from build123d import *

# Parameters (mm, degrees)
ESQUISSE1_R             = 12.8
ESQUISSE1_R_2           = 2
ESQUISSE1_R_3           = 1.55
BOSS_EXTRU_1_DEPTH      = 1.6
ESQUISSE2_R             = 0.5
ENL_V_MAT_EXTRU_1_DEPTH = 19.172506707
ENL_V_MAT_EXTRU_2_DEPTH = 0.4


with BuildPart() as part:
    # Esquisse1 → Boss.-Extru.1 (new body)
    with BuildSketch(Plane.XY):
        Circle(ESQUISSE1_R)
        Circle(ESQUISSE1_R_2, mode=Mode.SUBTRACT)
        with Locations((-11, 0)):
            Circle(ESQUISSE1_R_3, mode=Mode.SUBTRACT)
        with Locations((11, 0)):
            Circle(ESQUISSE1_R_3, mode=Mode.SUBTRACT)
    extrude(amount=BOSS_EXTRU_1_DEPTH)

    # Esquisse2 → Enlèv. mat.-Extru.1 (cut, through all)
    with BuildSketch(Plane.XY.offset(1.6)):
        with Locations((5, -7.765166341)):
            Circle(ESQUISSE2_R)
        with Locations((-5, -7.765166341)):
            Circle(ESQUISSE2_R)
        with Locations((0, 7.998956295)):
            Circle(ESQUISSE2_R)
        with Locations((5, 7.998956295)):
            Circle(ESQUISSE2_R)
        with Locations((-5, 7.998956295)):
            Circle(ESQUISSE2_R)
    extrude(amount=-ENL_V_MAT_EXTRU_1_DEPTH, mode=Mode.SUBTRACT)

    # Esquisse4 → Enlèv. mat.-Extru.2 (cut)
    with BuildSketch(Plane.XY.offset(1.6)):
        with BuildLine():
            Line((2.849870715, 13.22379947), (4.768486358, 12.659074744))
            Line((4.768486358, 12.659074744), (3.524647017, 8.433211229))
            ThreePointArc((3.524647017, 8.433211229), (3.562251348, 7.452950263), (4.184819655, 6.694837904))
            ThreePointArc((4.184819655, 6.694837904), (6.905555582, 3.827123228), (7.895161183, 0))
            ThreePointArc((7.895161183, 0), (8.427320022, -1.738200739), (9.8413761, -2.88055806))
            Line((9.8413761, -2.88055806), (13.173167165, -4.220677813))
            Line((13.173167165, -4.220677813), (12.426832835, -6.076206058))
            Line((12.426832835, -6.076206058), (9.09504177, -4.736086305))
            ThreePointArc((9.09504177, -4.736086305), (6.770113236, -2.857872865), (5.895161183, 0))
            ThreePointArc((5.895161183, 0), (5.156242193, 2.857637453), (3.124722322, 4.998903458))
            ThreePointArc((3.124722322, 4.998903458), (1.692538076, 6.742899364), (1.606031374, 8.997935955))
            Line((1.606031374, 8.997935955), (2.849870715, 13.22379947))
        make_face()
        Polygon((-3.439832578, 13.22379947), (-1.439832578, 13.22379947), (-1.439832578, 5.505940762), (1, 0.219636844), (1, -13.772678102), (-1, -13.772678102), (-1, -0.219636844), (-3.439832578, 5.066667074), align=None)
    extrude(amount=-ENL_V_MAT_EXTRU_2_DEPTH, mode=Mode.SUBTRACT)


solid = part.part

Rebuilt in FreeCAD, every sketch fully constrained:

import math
import FreeCAD as App
import Part
import Sketcher

V = App.Vector


def add_polygon(sketch, points):
    """Adds a closed chain of lines whose ends are joined by coincident constraints."""
    first, n = sketch.GeometryCount, len(points)
    for a, b in zip(points, points[1:] + points[:1]):
        sketch.addGeometry(Part.LineSegment(App.Vector(*a, 0), App.Vector(*b, 0)), False)
    for i in range(n):
        sketch.addConstraint(Sketcher.Constraint("Coincident", first + i, 2, first + (i + 1) % n, 1))

doc = App.newDocument("Part")
params = doc.addObject("Spreadsheet::Sheet", "Params")
for row, (alias, value) in enumerate([
    ("sketch1_diameter", "4 mm"),
    ("sketch1_diameter2", "25.6 mm"),
    ("sketch1_diameter3", "3.1 mm"),
    ("pad1_length", "1.6 mm"),
    ("sketch2_diameter", "1 mm"),
    ("sketch3_width", "2 mm"),
    ("sketch3_length", "2 mm"),
    ("pocket2_length", "0.4 mm"),
], start=1):
    params.set(f"A{row}", alias)
    params.set(f"B{row}", "=" + value)
    params.setAlias(f"B{row}", alias)

body = doc.addObject("PartDesign::Body", "Body")

# Sketch on XY plane
sketch1 = doc.addObject("Sketcher::SketchObject", "Sketch")
body.addObject(sketch1)
sketch1.AttachmentSupport = (doc.XY_Plane, [""])
sketch1.MapMode = "FlatFace"
sketch1.addGeometry([
    Part.Circle(V(0, 0, 0), V(0, 0, 1), 12.8),
    Part.Circle(V(-11, 0, 0), V(0, 0, 1), 1.6),
    Part.Circle(V(0, 0, 0), V(0, 0, 1), 2),
    Part.Circle(V(11, 0, 0), V(0, 0, 1), 1.6),
], False)
sketch1.addConstraint([
    Sketcher.Constraint("Coincident", 0, 3, -1, 1),
    Sketcher.Constraint("Coincident", 2, 3, -1, 1),
    Sketcher.Constraint("Equal", 1, 3),
    Sketcher.Constraint("Symmetric", 1, 3, 3, 3, -1, 1),
    Sketcher.Constraint("PointOnObject", 1, 3, -1),
    Sketcher.Constraint("Diameter", 2, 4.0),
    Sketcher.Constraint("Diameter", 0, 25.6),
    Sketcher.Constraint("Diameter", 1, 3.1),
    Sketcher.Constraint("DistanceX", 1, 3, -1, 1, 11.0),
])
sketch1.setExpression("Constraints[5]", "Params.sketch1_diameter")
sketch1.setExpression("Constraints[6]", "Params.sketch1_diameter2")
sketch1.setExpression("Constraints[7]", "Params.sketch1_diameter3")
pad1 = doc.addObject("PartDesign::Pad", "Pad")
body.addObject(pad1)
pad1.Profile = sketch1
pad1.setExpression("Length", "Params.pad1_length")

# Sketch on XY plane
sketch2 = doc.addObject("Sketcher::SketchObject", "Sketch001")
body.addObject(sketch2)
sketch2.AttachmentSupport = (doc.XY_Plane, [""])
sketch2.MapMode = "FlatFace"
sketch2.AttachmentOffset = App.Placement(V(0, 0, 1.6), App.Rotation())
sketch2.addGeometry([
    Part.Circle(V(5, -7.8, 0), V(0, 0, 1), 0.5),  # 0
    Part.Circle(V(-5, -7.8, 0), V(0, 0, 1), 0.5),  # 1
    Part.Circle(V(0, 8, 0), V(0, 0, 1), 0.5),  # 2
    Part.Circle(V(5, 8, 0), V(0, 0, 1), 0.5),  # 3
    Part.Circle(V(-5, 8, 0), V(0, 0, 1), 0.5),  # 4
], False)
sketch2.addConstraint([
    Sketcher.Constraint("Equal", 0, 1),
    Sketcher.Constraint("Equal", 1, 2),
    Sketcher.Constraint("Equal", 2, 3),
    Sketcher.Constraint("Equal", 3, 4),
    Sketcher.Constraint("Symmetric", 0, 3, 1, 3, -2),
    Sketcher.Constraint("Symmetric", 3, 3, 4, 3, -2),
    Sketcher.Constraint("PointOnObject", 2, 3, -2),
    Sketcher.Constraint("Horizontal", 2, 3, 3, 3),
    Sketcher.Constraint("Vertical", 0, 3, 3, 3),
    Sketcher.Constraint("Diameter", 0, 1.0),
    Sketcher.Constraint("DistanceX", -1, 1, 0, 3, 5.0),
    Sketcher.Constraint("DistanceY", 0, 3, -1, 1, 7.765166),
    Sketcher.Constraint("DistanceY", -1, 1, 2, 3, 7.998956),
])
sketch2.setExpression("Constraints[9]", "Params.sketch2_diameter")
pocket1 = doc.addObject("PartDesign::Pocket", "Pocket")
body.addObject(pocket1)
pocket1.Profile = sketch2
pocket1.Type = "ThroughAll"

# Sketch on XY plane
sketch3 = doc.addObject("Sketcher::SketchObject", "Sketch002")
body.addObject(sketch3)
sketch3.AttachmentSupport = (doc.XY_Plane, [""])
sketch3.MapMode = "FlatFace"
sketch3.AttachmentOffset = App.Placement(V(0, 0, 1.6), App.Rotation())
sketch3.addGeometry(Part.LineSegment(V(4.8, 12.7, 0), V(2.8, 13.2, 0)), False)  # 0
sketch3.addGeometry(Part.LineSegment(V(2.8, 13.2, 0), V(1.6, 9, 0)), False)  # 1
sketch3.addGeometry(Part.ArcOfCircle(Part.Circle(V(5, 8, 0), V(0, 0, 1), 3.5), math.radians(164), math.radians(238)), False)  # 2
sketch3.addGeometry(Part.ArcOfCircle(Part.Circle(V(0, 0, 0), V(0, 0, 1), 5.9), math.radians(0), math.radians(58)), False)  # 3
sketch3.addGeometry(Part.ArcOfCircle(Part.Circle(V(11, 0, 0), V(0, 0, 1), 5.1), math.radians(180), math.radians(248)), False)  # 4
sketch3.addGeometry(Part.LineSegment(V(9.1, -4.7, 0), V(12.4, -6.1, 0)), False)  # 5
sketch3.addGeometry(Part.LineSegment(V(12.4, -6.1, 0), V(13.2, -4.2, 0)), False)  # 6
sketch3.addGeometry(Part.LineSegment(V(13.2, -4.2, 0), V(9.8, -2.9, 0)), False)  # 7
sketch3.addGeometry(Part.ArcOfCircle(Part.Circle(V(11, 0, 0), V(0, 0, 1), 3.1), math.radians(-180), math.radians(-112)), False)  # 8
sketch3.addGeometry(Part.ArcOfCircle(Part.Circle(V(0, 0, 0), V(0, 0, 1), 7.9), math.radians(0), math.radians(58)), False)  # 9
sketch3.addGeometry(Part.ArcOfCircle(Part.Circle(V(5, 8, 0), V(0, 0, 1), 1.5), math.radians(164), math.radians(238)), False)  # 10
sketch3.addGeometry(Part.LineSegment(V(3.5, 8.4, 0), V(4.8, 12.7, 0)), False)  # 11
add_polygon(sketch3, [(-1.4, 13.2), (-3.4, 13.2), (-3.4, 5.1), (-1, -0.2), (-1, -13.8), (1, -13.8), (1, 0.2), (-1.4, 5.5)])  # lines 12-19
sketch3.addConstraint([
    Sketcher.Constraint("Coincident", 0, 2, 1, 1),
    Sketcher.Constraint("Tangent", 1, 2, 2, 1),
    Sketcher.Constraint("Tangent", 2, 2, 3, 2),
    Sketcher.Constraint("Tangent", 3, 1, 4, 1),
    Sketcher.Constraint("Tangent", 4, 2, 5, 1),
    Sketcher.Constraint("Coincident", 5, 2, 6, 1),
    Sketcher.Constraint("Coincident", 6, 2, 7, 1),
    Sketcher.Constraint("Tangent", 7, 2, 8, 2),
    Sketcher.Constraint("Tangent", 8, 1, 9, 1),
    Sketcher.Constraint("Tangent", 9, 2, 10, 2),
    Sketcher.Constraint("Tangent", 10, 1, 11, 1),
    Sketcher.Constraint("Coincident", 11, 2, 0, 1),
    Sketcher.Constraint("Horizontal", 12),
    Sketcher.Constraint("Vertical", 13),
    Sketcher.Constraint("Vertical", 15),
    Sketcher.Constraint("Horizontal", 16),
    Sketcher.Constraint("Vertical", 17),
    Sketcher.Constraint("Vertical", 19),
    Sketcher.Constraint("Coincident", 3, 3, -1, 1),
    Sketcher.Constraint("Coincident", 9, 3, -1, 1),
    Sketcher.Constraint("Coincident", 8, 3, 4, 3),
    Sketcher.Constraint("Coincident", 10, 3, 2, 3),
    Sketcher.Constraint("Symmetric", 14, 2, 17, 2, -1, 1),
    Sketcher.Constraint("PointOnObject", 4, 3, -1),
    Sketcher.Constraint("Perpendicular", 0, 1),
    Sketcher.Constraint("Perpendicular", 5, 6),
    Sketcher.Constraint("Perpendicular", 6, 7),
    Sketcher.Constraint("Parallel", 1, 11),
    Sketcher.Constraint("Parallel", 14, 18),
    Sketcher.Constraint("Horizontal", 0, 2, 12, 2),
    Sketcher.Constraint("Equal", 12, 16),
    Sketcher.Constraint("DistanceX", 12, 2, 12, 1, 2.0),
    Sketcher.Constraint("Distance", 0, 2.0),
    Sketcher.Constraint("DistanceX", -1, 1, 2, 3, 5.0),
    Sketcher.Constraint("DistanceX", -1, 1, 4, 3, 11.0),
    Sketcher.Constraint("Radius", 3, 5.895161),
    Sketcher.Constraint("Radius", 2, 3.537935),
    Sketcher.Constraint("DistanceY", 15, 2, 15, 1, 13.553041),
    Sketcher.Constraint("DistanceY", 19, 1, 19, 2, 7.717859),
    Sketcher.Constraint("DistanceY", -1, 1, 0, 2, 13.223799),
    Sketcher.Constraint("DistanceY", 9, 2, 1, 2, 2.303098),
    Sketcher.Constraint("Distance", 14, 5.822181),
    Sketcher.Constraint("DistanceY", 13, 2, 13, 1, 8.157132),
    Sketcher.Constraint("DistanceX", -1, 1, 4, 2, 9.095042),
    Sketcher.Constraint("DistanceX", 4, 2, 5, 2, 3.331791),
])
sketch3.setExpression("Constraints[39]", "Params.sketch3_width")
sketch3.setExpression("Constraints[40]", "Params.sketch3_length")
pocket2 = doc.addObject("PartDesign::Pocket", "Pocket001")
body.addObject(pocket2)
pocket2.Profile = sketch3
pocket2.setExpression("Length", "Params.pocket2_length")

doc.recompute()
